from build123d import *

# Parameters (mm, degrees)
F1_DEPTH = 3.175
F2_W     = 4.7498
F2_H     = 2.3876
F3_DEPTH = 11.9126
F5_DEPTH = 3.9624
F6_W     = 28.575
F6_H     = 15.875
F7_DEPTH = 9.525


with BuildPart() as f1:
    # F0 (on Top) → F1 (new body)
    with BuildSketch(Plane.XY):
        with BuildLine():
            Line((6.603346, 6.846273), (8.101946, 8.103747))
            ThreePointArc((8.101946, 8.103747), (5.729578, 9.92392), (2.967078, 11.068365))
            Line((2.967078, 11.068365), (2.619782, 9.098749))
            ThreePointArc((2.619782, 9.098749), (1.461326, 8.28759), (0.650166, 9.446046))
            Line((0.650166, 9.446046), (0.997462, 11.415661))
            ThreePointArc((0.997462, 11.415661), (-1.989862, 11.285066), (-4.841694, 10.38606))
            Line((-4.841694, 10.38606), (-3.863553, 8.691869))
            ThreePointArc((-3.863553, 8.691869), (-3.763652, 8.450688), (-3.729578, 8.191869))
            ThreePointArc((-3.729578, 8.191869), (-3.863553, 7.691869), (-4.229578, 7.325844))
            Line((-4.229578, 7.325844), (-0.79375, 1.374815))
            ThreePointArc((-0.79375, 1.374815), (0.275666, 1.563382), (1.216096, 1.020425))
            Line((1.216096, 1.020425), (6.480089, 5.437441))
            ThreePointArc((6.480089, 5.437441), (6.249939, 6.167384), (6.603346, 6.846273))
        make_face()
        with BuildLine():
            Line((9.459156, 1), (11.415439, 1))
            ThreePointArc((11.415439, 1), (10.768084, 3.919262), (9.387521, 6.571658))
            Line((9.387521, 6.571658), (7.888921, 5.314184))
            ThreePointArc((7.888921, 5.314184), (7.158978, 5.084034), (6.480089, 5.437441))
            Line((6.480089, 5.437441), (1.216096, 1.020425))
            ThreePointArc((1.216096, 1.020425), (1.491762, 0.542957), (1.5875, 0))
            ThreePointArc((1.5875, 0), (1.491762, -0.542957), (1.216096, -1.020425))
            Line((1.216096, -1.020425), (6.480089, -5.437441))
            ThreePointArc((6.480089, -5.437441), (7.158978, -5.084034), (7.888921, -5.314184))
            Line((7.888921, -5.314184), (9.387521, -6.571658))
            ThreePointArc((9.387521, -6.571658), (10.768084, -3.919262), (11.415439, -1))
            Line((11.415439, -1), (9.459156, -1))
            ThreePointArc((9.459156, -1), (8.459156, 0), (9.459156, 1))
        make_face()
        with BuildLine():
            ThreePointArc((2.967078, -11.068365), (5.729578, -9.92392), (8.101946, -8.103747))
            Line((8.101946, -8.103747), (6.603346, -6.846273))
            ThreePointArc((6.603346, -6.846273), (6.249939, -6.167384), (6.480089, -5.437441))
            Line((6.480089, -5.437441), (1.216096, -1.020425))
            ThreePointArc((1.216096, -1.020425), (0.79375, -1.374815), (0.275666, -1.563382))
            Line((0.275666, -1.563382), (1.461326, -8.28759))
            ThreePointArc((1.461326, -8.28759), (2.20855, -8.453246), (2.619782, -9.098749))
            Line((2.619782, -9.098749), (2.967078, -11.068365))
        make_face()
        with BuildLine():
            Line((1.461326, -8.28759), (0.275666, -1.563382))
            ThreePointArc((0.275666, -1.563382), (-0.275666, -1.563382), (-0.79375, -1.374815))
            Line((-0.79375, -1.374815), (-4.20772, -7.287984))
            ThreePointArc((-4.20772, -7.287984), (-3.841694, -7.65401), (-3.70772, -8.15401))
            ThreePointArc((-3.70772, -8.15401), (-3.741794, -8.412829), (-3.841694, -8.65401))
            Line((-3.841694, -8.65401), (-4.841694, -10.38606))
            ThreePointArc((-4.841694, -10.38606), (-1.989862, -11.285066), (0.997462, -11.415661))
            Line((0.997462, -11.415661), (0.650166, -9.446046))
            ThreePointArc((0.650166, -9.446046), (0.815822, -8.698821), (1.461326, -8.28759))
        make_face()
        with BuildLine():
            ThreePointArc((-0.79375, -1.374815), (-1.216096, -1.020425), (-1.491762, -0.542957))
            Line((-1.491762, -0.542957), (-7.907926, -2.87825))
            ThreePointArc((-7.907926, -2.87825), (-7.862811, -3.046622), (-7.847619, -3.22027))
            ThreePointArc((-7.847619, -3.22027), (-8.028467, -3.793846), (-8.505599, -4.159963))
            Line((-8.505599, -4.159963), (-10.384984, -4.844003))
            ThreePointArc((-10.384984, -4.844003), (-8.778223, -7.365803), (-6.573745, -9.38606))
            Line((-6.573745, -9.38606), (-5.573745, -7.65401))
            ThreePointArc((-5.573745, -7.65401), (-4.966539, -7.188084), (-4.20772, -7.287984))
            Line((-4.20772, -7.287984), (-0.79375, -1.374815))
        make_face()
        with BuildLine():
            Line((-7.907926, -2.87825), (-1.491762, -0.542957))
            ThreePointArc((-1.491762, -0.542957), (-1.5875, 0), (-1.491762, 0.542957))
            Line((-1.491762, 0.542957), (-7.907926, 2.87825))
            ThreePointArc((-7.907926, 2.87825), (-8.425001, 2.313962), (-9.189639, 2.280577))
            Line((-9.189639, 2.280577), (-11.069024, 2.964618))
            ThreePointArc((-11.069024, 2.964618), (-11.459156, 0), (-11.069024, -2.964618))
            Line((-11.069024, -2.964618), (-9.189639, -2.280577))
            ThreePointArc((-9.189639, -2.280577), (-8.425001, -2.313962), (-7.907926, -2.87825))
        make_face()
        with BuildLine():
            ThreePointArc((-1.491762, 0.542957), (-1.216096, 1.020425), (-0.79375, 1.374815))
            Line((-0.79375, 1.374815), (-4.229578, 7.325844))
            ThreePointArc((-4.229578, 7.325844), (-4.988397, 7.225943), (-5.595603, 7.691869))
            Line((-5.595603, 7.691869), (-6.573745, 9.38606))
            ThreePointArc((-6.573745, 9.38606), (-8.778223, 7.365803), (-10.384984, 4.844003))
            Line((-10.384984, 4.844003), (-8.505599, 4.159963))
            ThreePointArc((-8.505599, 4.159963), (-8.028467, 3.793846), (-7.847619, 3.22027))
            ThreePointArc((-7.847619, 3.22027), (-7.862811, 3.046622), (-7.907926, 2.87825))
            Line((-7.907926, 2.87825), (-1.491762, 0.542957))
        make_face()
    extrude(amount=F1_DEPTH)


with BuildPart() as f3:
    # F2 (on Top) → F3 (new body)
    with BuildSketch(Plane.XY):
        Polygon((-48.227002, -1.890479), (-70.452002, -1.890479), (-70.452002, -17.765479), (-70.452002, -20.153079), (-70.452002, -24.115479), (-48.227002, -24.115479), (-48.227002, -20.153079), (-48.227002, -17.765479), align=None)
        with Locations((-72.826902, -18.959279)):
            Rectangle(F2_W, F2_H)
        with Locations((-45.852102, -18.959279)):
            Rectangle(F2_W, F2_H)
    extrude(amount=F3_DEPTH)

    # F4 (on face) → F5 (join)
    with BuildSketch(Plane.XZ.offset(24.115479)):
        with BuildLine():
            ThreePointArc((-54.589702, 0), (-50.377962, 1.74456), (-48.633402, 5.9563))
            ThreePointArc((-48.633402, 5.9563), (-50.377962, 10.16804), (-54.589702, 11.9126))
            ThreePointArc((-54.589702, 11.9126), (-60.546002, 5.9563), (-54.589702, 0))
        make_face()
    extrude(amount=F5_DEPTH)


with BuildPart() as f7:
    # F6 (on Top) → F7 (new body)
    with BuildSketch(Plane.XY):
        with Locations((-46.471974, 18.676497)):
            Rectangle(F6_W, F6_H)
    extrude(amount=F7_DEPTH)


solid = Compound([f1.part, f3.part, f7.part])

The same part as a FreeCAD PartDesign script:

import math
import FreeCAD as App
import Part
import Sketcher

V = App.Vector
Q = App.Units.Quantity


def add_polygon(sketch, points):
    """Adds a closed chain of lines whose ends are joined by coincident constraints."""
    first, n = sketch.GeometryCount, len(points)
    for a, b in zip(points, points[1:] + points[:1]):
        sketch.addGeometry(Part.LineSegment(App.Vector(*a, 0), App.Vector(*b, 0)), False)
    for i in range(n):
        sketch.addConstraint(Sketcher.Constraint("Coincident", first + i, 2, first + (i + 1) % n, 1))

doc = App.newDocument("Part")
body = doc.addObject("PartDesign::Body", "Body")

# Sketch on XY plane
sketch1 = body.newObject("Sketcher::SketchObject", "Sketch")
sketch1.AttachmentSupport = (doc.getObject("XY_Plane"), [""])
sketch1.MapMode = "FlatFace"
sketch1.addGeometry([
    Part.LineSegment(V(6.603346, 6.846273, 0), V(8.101946, 8.103747, 0)),  # 0
    Part.ArcOfCircle(Part.Circle(V(0.000001, 0.000003, 0), V(0, 0, 1), 11.459153), math.radians(45.006359), math.radians(74.993631)),  # 1
    Part.LineSegment(V(2.967078, 11.068365, 0), V(2.619782, 9.098749, 0)),  # 2
    Part.ArcOfCircle(Part.Circle(V(1.634974, 9.272398, 0), V(0, 0, 1), 1), math.radians(170.000017), math.radians(349.999951)),  # 3
    Part.LineSegment(V(0.650166, 9.446046, 0), V(0.997462, 11.415661, 0)),  # 4
    Part.ArcOfCircle(Part.Circle(V(-0.000004, 0.000026, 0), V(0, 0, 1), 11.45913), math.radians(85.006338), math.radians(114.993667)),  # 5
    Part.LineSegment(V(-4.841694, 10.38606, 0), V(-3.863553, 8.691869, 0)),  # 6
    Part.ArcOfCircle(Part.Circle(V(-4.729568, 8.191871, 0), V(0, 0, 1), 0.99999), math.radians(-0.000107), math.radians(30.000193)),  # 7
    Part.ArcOfCircle(Part.Circle(V(-4.729579, 8.19187, 0), V(0, 0, 1), 1.000001), math.radians(-59.999968), math.radians(-0.000055)),  # 8
    Part.ArcOfCircle(Part.Circle(V(-4.729578, 8.191867, 0), V(0, 0, 1), 0.999998), math.radians(-150.000058), math.radians(-59.999918)),  # 9
    Part.LineSegment(V(-5.595603, 7.691869, 0), V(-6.573745, 9.38606, 0)),  # 10
    Part.ArcOfCircle(Part.Circle(V(-0.000002, 0, 0), V(0, 0, 1), 11.459154), math.radians(125.006362), math.radians(154.993628)),  # 11
    Part.LineSegment(V(-10.384984, 4.844003, 0), V(-8.505599, 4.159963, 0)),  # 12
    Part.ArcOfCircle(Part.Circle(V(-8.847621, 3.220269, 0), V(0, 0, 1), 1.000002), math.radians(0.000067), math.radians(69.999923)),  # 13
    Part.ArcOfCircle(Part.Circle(V(-8.847615, 3.220268, 0), V(0, 0, 1), 0.999996), math.radians(-19.999973), math.radians(0.000088)),  # 14
    Part.ArcOfCircle(Part.Circle(V(-8.847619, 3.220271, 0), V(0, 0, 1), 1.000001), math.radians(-109.999954), math.radians(-20.000016)),  # 15
    Part.LineSegment(V(-9.189639, 2.280577, 0), V(-11.069024, 2.964618, 0)),  # 16
    Part.ArcOfCircle(Part.Circle(V(-0.000005, 0, 0), V(0, 0, 1), 11.459151), math.radians(165.006359), math.radians(194.993641)),  # 17
    Part.LineSegment(V(-11.069024, -2.964618, 0), V(-9.189639, -2.280577, 0)),  # 18
    Part.ArcOfCircle(Part.Circle(V(-8.847619, -3.220271, 0), V(0, 0, 1), 1.000001), math.radians(20.000016), math.radians(109.999954)),  # 19
    Part.ArcOfCircle(Part.Circle(V(-8.847615, -3.220268, 0), V(0, 0, 1), 0.999996), math.radians(-0.000088), math.radians(19.999973)),  # 20
    Part.ArcOfCircle(Part.Circle(V(-8.847621, -3.220269, 0), V(0, 0, 1), 1.000002), math.radians(-69.999923), math.radians(-0.000067)),  # 21
    Part.LineSegment(V(-8.505599, -4.159963, 0), V(-10.384984, -4.844003, 0)),  # 22
    Part.ArcOfCircle(Part.Circle(V(-0.000002, 0, 0), V(0, 0, 1), 11.459154), math.radians(-154.993628), math.radians(-125.006362)),  # 23
    Part.LineSegment(V(-6.573745, -9.38606, 0), V(-5.573745, -7.65401, 0)),  # 24
    Part.ArcOfCircle(Part.Circle(V(-4.707719, -8.15401, 0), V(0, 0, 1), 1), math.radians(60.000032), math.radians(150.000023)),  # 25
    Part.ArcOfCircle(Part.Circle(V(-4.707719, -8.154009, 0), V(0, 0, 1), 0.999999), math.radians(-0.000081), math.radians(60.000047)),  # 26
    Part.ArcOfCircle(Part.Circle(V(-4.707723, -8.15401, 0), V(0, 0, 1), 1.000003), math.radians(-29.999883), math.radians(0.000011)),  # 27
    Part.LineSegment(V(-3.841694, -8.65401, 0), V(-4.841694, -10.38606, 0)),  # 28
    Part.ArcOfCircle(Part.Circle(V(-0.000004, -0.000026, 0), V(0, 0, 1), 11.45913), math.radians(-114.993667), math.radians(-85.006338)),  # 29
    Part.LineSegment(V(0.997462, -11.415661, 0), V(0.650166, -9.446046, 0)),  # 30
    Part.ArcOfCircle(Part.Circle(V(1.634974, -9.272398, 0), V(0, 0, 1), 1), math.radians(99.999977), math.radians(189.999998)),  # 31
    Part.ArcOfCircle(Part.Circle(V(1.634973, -9.2724, 0), V(0, 0, 1), 1.000002), math.radians(10.00013), math.radians(99.999911)),  # 32
    Part.LineSegment(V(2.619782, -9.098749, 0), V(2.967078, -11.068365, 0)),  # 33
    Part.ArcOfCircle(Part.Circle(V(0.000001, -0.000003, 0), V(0, 0, 1), 11.459153), math.radians(-74.993631), math.radians(-45.006359)),  # 34
    Part.LineSegment(V(8.101946, -8.103747, 0), V(6.603346, -6.846273, 0)),  # 35
    Part.ArcOfCircle(Part.Circle(V(7.246134, -6.080228, 0), V(0, 0, 1), 1), math.radians(140.000033), math.radians(229.99998)),  # 36
    Part.ArcOfCircle(Part.Circle(V(7.246134, -6.080229, 0), V(0, 0, 1), 1), math.radians(50.000033), math.radians(139.99998)),  # 37
    Part.LineSegment(V(7.888921, -5.314184, 0), V(9.387521, -6.571658, 0)),  # 38
    Part.ArcOfCircle(Part.Circle(V(0.000005, -0.000001, 0), V(0, 0, 1), 11.45915), math.radians(-34.993641), math.radians(-5.006365)),  # 39
    Part.LineSegment(V(11.415439, -1, 0), V(9.459156, -1, 0)),  # 40
    Part.ArcOfCircle(Part.Circle(V(9.459156, 0, 0), V(0, 0, 1), 1), math.radians(90), math.radians(270)),  # 41
    Part.LineSegment(V(9.459156, 1, 0), V(11.415439, 1, 0)),  # 42
    Part.ArcOfCircle(Part.Circle(V(0.000005, 0.000001, 0), V(0, 0, 1), 11.45915), math.radians(5.006365), math.radians(34.993641)),  # 43
    Part.LineSegment(V(9.387521, 6.571658, 0), V(7.888921, 5.314184, 0)),  # 44
    Part.ArcOfCircle(Part.Circle(V(7.246134, 6.080229, 0), V(0, 0, 1), 1), math.radians(-139.99998), math.radians(-50.000033)),  # 45
    Part.ArcOfCircle(Part.Circle(V(7.246134, 6.080228, 0), V(0, 0, 1), 1), math.radians(130.00002), math.radians(219.999967)),  # 46
    Part.ArcOfCircle(Part.Circle(V(0, -0.000001, 0), V(0, 0, 1), 1.587501), math.radians(40.00002), math.radians(119.999984)),  # 47
    Part.ArcOfCircle(Part.Circle(V(-0.000001, 0, 0), V(0, 0, 1), 1.587501), math.radians(0.000012), math.radians(39.999956)),  # 48
    Part.ArcOfCircle(Part.Circle(V(-0.000001, 0, 0), V(0, 0, 1), 1.587501), math.radians(-39.999956), math.radians(-0.000012)),  # 49
    Part.ArcOfCircle(Part.Circle(V(-0.000001, 0.000003, 0), V(0, 0, 1), 1.587502), math.radians(-80.000009), math.radians(-40.000038)),  # 50
    Part.ArcOfCircle(Part.Circle(V(0, 0.000001, 0), V(0, 0, 1), 1.5875), math.radians(-119.99999), math.radians(-80.000021)),  # 51
    Part.ArcOfCircle(Part.Circle(V(-0.000004, -0.000003, 0), V(0, 0, 1), 1.587495), math.radians(-160.000044), math.radians(-119.999935)),  # 52
    Part.ArcOfCircle(Part.Circle(V(0, 0, 0), V(0, 0, 1), 1.5875), math.radians(159.999994), math.radians(200.000006)),  # 53
    Part.ArcOfCircle(Part.Circle(V(-0.000004, 0.000003, 0), V(0, 0, 1), 1.587495), math.radians(119.999935), math.radians(160.000044)),  # 54
], False)
sketch1.addConstraint([
    Sketcher.Constraint("Coincident", 0, 2, 1, 1),
    Sketcher.Constraint("Coincident", 1, 2, 2, 1),
    Sketcher.Constraint("Tangent", 2, 2, 3, 2),
    Sketcher.Constraint("Tangent", 3, 1, 4, 1),
    Sketcher.Constraint("Coincident", 4, 2, 5, 1),
    Sketcher.Constraint("Coincident", 5, 2, 6, 1),
    Sketcher.Constraint("Coincident", 6, 2, 7, 2),
    Sketcher.Constraint("Tangent", 7, 1, 8, 2),
    Sketcher.Constraint("Tangent", 8, 1, 9, 2),
    Sketcher.Constraint("Tangent", 9, 1, 10, 1),
    Sketcher.Constraint("Coincident", 10, 2, 11, 1),
    Sketcher.Constraint("Coincident", 11, 2, 12, 1),
    Sketcher.Constraint("Tangent", 12, 2, 13, 2),
    Sketcher.Constraint("Tangent", 13, 1, 14, 2),
    Sketcher.Constraint("Tangent", 14, 1, 15, 2),
    Sketcher.Constraint("Tangent", 15, 1, 16, 1),
    Sketcher.Constraint("Coincident", 16, 2, 17, 1),
    Sketcher.Constraint("Coincident", 17, 2, 18, 1),
    Sketcher.Constraint("Tangent", 18, 2, 19, 2),
    Sketcher.Constraint("Tangent", 19, 1, 20, 2),
    Sketcher.Constraint("Tangent", 20, 1, 21, 2),
    Sketcher.Constraint("Tangent", 21, 1, 22, 1),
    Sketcher.Constraint("Coincident", 22, 2, 23, 1),
    Sketcher.Constraint("Coincident", 23, 2, 24, 1),
    Sketcher.Constraint("Tangent", 24, 2, 25, 2),
    Sketcher.Constraint("Tangent", 25, 1, 26, 2),
    Sketcher.Constraint("Tangent", 26, 1, 27, 2),
    Sketcher.Constraint("Coincident", 27, 1, 28, 1),
    Sketcher.Constraint("Coincident", 28, 2, 29, 1),
    Sketcher.Constraint("Coincident", 29, 2, 30, 1),
    Sketcher.Constraint("Tangent", 30, 2, 31, 2),
    Sketcher.Constraint("Tangent", 31, 1, 32, 2),
    Sketcher.Constraint("Coincident", 32, 1, 33, 1),
    Sketcher.Constraint("Coincident", 33, 2, 34, 1),
    Sketcher.Constraint("Coincident", 34, 2, 35, 1),
    Sketcher.Constraint("Tangent", 35, 2, 36, 2),
    Sketcher.Constraint("Tangent", 36, 1, 37, 2),
    Sketcher.Constraint("Tangent", 37, 1, 38, 1),
    Sketcher.Constraint("Coincident", 38, 2, 39, 1),
    Sketcher.Constraint("Coincident", 39, 2, 40, 1),
    Sketcher.Constraint("Tangent", 40, 2, 41, 2),
    Sketcher.Constraint("Tangent", 41, 1, 42, 1),
    Sketcher.Constraint("Coincident", 42, 2, 43, 1),
    Sketcher.Constraint("Coincident", 43, 2, 44, 1),
    Sketcher.Constraint("Tangent", 44, 2, 45, 2),
    Sketcher.Constraint("Tangent", 45, 1, 46, 2),
    Sketcher.Constraint("Tangent", 46, 1, 0, 1),
    Sketcher.Constraint("Tangent", 47, 1, 48, 2),
    Sketcher.Constraint("Tangent", 48, 1, 49, 2),
    Sketcher.Constraint("Tangent", 49, 1, 50, 2),
    Sketcher.Constraint("Tangent", 50, 1, 51, 2),
    Sketcher.Constraint("Tangent", 51, 1, 52, 2),
    Sketcher.Constraint("Tangent", 52, 1, 53, 2),
    Sketcher.Constraint("Tangent", 53, 1, 54, 2),
    Sketcher.Constraint("Tangent", 54, 1, 47, 2),
    Sketcher.Constraint("Horizontal", 40),
    Sketcher.Constraint("Horizontal", 42),
    Sketcher.Constraint("Coincident", 1, 3, -1, 1),
    Sketcher.Constraint("Coincident", 11, 3, -1, 1),
    Sketcher.Constraint("Coincident", 17, 3, -1, 1),
    Sketcher.Constraint("Coincident", 23, 3, -1, 1),
    Sketcher.Constraint("Coincident", 34, 3, -1, 1),
    Sketcher.Constraint("Coincident", 39, 3, -1, 1),
    Sketcher.Constraint("Coincident", 43, 3, -1, 1),
    Sketcher.Constraint("Coincident", 47, 3, -1, 1),
    Sketcher.Constraint("Coincident", 49, 3, -1, 1),
    Sketcher.Constraint("Coincident", 51, 3, -1, 1),
    Sketcher.Constraint("Coincident", 15, 3, 13, 3),
    Sketcher.Constraint("Coincident", 21, 3, 19, 3),
    Sketcher.Constraint("Coincident", 27, 3, 25, 3),
    Sketcher.Constraint("Equal", 3, 8),
    Sketcher.Constraint("Equal", 3, 9),
    Sketcher.Constraint("Equal", 1, 11),
    Sketcher.Constraint("Equal", 8, 13),
    Sketcher.Constraint("Equal", 15, 19),
    Sketcher.Constraint("Equal", 11, 23),
    Sketcher.Constraint("Equal", 19, 25),
    Sketcher.Constraint("Equal", 5, 29),
    Sketcher.Constraint("Equal", 26, 31),
    Sketcher.Constraint("Equal", 31, 32),
    Sketcher.Constraint("Equal", 23, 34),
    Sketcher.Constraint("Equal", 32, 36),
    Sketcher.Constraint("Equal", 36, 37),
    Sketcher.Constraint("Equal", 17, 39),
    Sketcher.Constraint("Equal", 37, 41),
    Sketcher.Constraint("Equal", 39, 43),
    Sketcher.Constraint("Equal", 41, 45),
    Sketcher.Constraint("Equal", 45, 46),
    Sketcher.Constraint("Equal", 51, 53),
    Sketcher.Constraint("Symmetric", 5, 3, 29, 3, -1, 1),
    Sketcher.Constraint("Symmetric", 13, 3, 19, 3, -1),
    Sketcher.Constraint("Symmetric", 3, 3, 31, 3, -1),
    Sketcher.Constraint("Symmetric", 36, 3, 45, 3, -1),
    Sketcher.Constraint("Symmetric", 5, 2, 28, 2, -1),
    Sketcher.Constraint("PointOnObject", 41, 3, -1),
    Sketcher.Constraint("PointOnObject", 48, 1, -1),
    Sketcher.Constraint("Parallel", 2, 4),
    Sketcher.Constraint("Parallel", 6, 10),
    Sketcher.Constraint("Parallel", 12, 16),
    Sketcher.Constraint("Parallel", 18, 22),
    Sketcher.Constraint("Parallel", 24, 28),
    Sketcher.Constraint("Parallel", 30, 33),
    Sketcher.Constraint("Parallel", 35, 38),
    Sketcher.Constraint("Parallel", 0, 44),
    Sketcher.Constraint("Horizontal", 9, 3, 7, 1),
    Sketcher.Constraint("Horizontal", 15, 3, 13, 1),
    Sketcher.Constraint("Horizontal", 21, 3, 20, 1),
    Sketcher.Constraint("Horizontal", 27, 3, 26, 1),
    Sketcher.Constraint("Vertical", 16, 2, 17, 2),
    Sketcher.Constraint("Vertical", 14, 1, 19, 1),
    Sketcher.Constraint("Vertical", 10, 2, 23, 2),
    Sketcher.Constraint("Vertical", 4, 2, 29, 2),
    Sketcher.Constraint("Vertical", 2, 2, 32, 1),
    Sketcher.Constraint("Vertical", 0, 2, 34, 2),
    Sketcher.Constraint("Vertical", 36, 1, 45, 1),
    Sketcher.Constraint("Vertical", 47, 1, 49, 1),
    Sketcher.Constraint("Vertical", 52, 1, 53, 1),
    Sketcher.Constraint("Vertical", 51, 1, 54, 1),
    Sketcher.Constraint("Equal", 2, 4),
    Sketcher.Constraint("Equal", 0, 6),
    Sketcher.Constraint("Equal", 6, 10),
    Sketcher.Constraint("Equal", 4, 12),
    Sketcher.Constraint("Equal", 12, 16),
    Sketcher.Constraint("Equal", 22, 24),
    Sketcher.Constraint("Equal", 24, 28),
    Sketcher.Constraint("Equal", 35, 38),
    Sketcher.Constraint("Angle", 0, Q("39.999984 deg")),
    Sketcher.Constraint("Angle", 2, Q("-99.999988 deg")),
    Sketcher.Constraint("Angle", 6, Q("-60.000016 deg")),
    Sketcher.Constraint("Angle", 12, Q("-19.999995 deg")),
    Sketcher.Constraint("Angle", 24, Q("59.999988 deg")),
    Sketcher.Constraint("Radius", 47, Q("0.0625 in")),
    Sketcher.Constraint("Radius", 3, Q("1 mm")),
    Sketcher.Constraint("DistanceX", 51, 1, -1, 1, Q("0.03125 in")),
    Sketcher.Constraint("Radius", 5, Q("11.45913 mm")),
    Sketcher.Constraint("Radius", 17, Q("11.459151 mm")),
    Sketcher.Constraint("DistanceY", -1, 1, 5, 2, Q("0.4089 in")),
    Sketcher.Constraint("Radius", 1, Q("11.459153 mm")),
    Sketcher.Constraint("Distance", 2, Q("2 mm")),
    Sketcher.Constraint("DistanceY", -1, 1, 3, 3, Q("9.272398 mm")),
    Sketcher.Constraint("DistanceX", 40, 2, 40, 1, Q("1.956283 mm")),
    Sketcher.Constraint("DistanceX", 7, 3, -1, 1, Q("4.729568 mm")),
    Sketcher.Constraint("DistanceY", -1, 1, 14, 1, Q("2.87825 mm")),
    Sketcher.Constraint("DistanceX", 25, 1, -1, 1, Q("4.20772 mm")),
    Sketcher.Constraint("DistanceY", 31, 1, -1, 1, Q("8.28759 mm")),
    Sketcher.Constraint("DistanceX", -1, 1, 36, 1, Q("6.480089 mm")),
    Sketcher.Constraint("DistanceY", 50, 1, -1, 1, Q("1.563382 mm")),
    Sketcher.Constraint("DistanceX", 53, 1, -1, 1, Q("1.491762 mm")),
    Sketcher.Constraint("DistanceX", 8, 1, -1, 1, Q("4.229578 mm")),
    Sketcher.Constraint("DistanceX", -1, 1, 47, 1, Q("1.216096 mm")),
])
pad1 = body.newObject("PartDesign::Pad", "Pad")
pad1.Profile = sketch1
pad1.Length = Q("0.125 in")
body2 = doc.addObject("PartDesign::Body", "Body001")

# Sketch on XY plane
sketch2 = body2.newObject("Sketcher::SketchObject", "Sketch001")
sketch2.AttachmentSupport = (doc.getObject("XY_Plane001"), [""])
sketch2.MapMode = "FlatFace"
add_polygon(sketch2, [(-48.2, -1.9), (-70.5, -1.9), (-70.5, -17.8), (-75.2, -17.8), (-75.2, -20.2), (-70.5, -20.2), (-70.5, -24.1), (-48.2, -24.1), (-48.2, -20.2), (-43.5, -20.2), (-43.5, -17.8), (-48.2, -17.8)])  # lines 0-11
sketch2.addConstraint([
    Sketcher.Constraint("Horizontal", 0),
    Sketcher.Constraint("Vertical", 1),
    Sketcher.Constraint("Horizontal", 2),
    Sketcher.Constraint("Vertical", 3),
    Sketcher.Constraint("Horizontal", 4),
    Sketcher.Constraint("Vertical", 5),
    Sketcher.Constraint("Horizontal", 6),
    Sketcher.Constraint("Vertical", 7),
    Sketcher.Constraint("Horizontal", 8),
    Sketcher.Constraint("Vertical", 9),
    Sketcher.Constraint("Horizontal", 10),
    Sketcher.Constraint("Vertical", 11),
    Sketcher.Constraint("Horizontal", 4, 2, 7, 2),
    Sketcher.Constraint("Horizontal", 2, 2, 9, 2),
    Sketcher.Constraint("Vertical", 1, 2, 4, 2),
    Sketcher.Constraint("Vertical", 7, 2, 10, 2),
    Sketcher.Constraint("Equal", 4, 8),
    Sketcher.Constraint("DistanceX", 0, 2, 0, 1, Q("0.875 in")),
    Sketcher.Constraint("DistanceX", 2, 2, 2, 1, Q("0.187 in")),
    Sketcher.Constraint("DistanceY", 1, 2, 1, 1, Q("0.625 in")),
    Sketcher.Constraint("DistanceY", 3, 2, 3, 1, Q("0.094 in")),
    Sketcher.Constraint("DistanceY", 5, 2, 5, 1, Q("0.156 in")),
    Sketcher.Constraint("DistanceX", 0, 2, -1, 1, Q("70.452002 mm")),
    Sketcher.Constraint("DistanceY", 0, 2, -1, 1, Q("1.890479 mm")),
])
pad2 = body2.newObject("PartDesign::Pad", "Pad001")
pad2.Profile = sketch2
pad2.Length = Q("0.469 in")

# Sketch on XZ plane
sketch3 = body2.newObject("Sketcher::SketchObject", "Sketch002")
sketch3.AttachmentSupport = (doc.getObject("XZ_Plane001"), [""])
sketch3.MapMode = "FlatFace"
sketch3.AttachmentOffset = App.Placement(V(0, 0, 24.115479), App.Rotation())
sketch3.addGeometry([
    Part.ArcOfCircle(Part.Circle(V(-55, 6, 0), V(0, 0, 1), 6), math.radians(-90), math.radians(0)),
    Part.ArcOfCircle(Part.Circle(V(-55, 6, 0), V(0, 0, 1), 6), math.radians(0), math.radians(90)),
    Part.ArcOfCircle(Part.Circle(V(-55, 6, 0), V(0, 0, 1), 6), math.radians(90), math.radians(270)),
], False)
sketch3.addConstraint([
    Sketcher.Constraint("Tangent", 0, 2, 1, 1),
    Sketcher.Constraint("Tangent", 1, 2, 2, 1),
    Sketcher.Constraint("Tangent", 2, 2, 0, 1),
    Sketcher.Constraint("PointOnObject", 2, 2, -1),
    Sketcher.Constraint("Horizontal", 2, 3, 0, 2),
    Sketcher.Constraint("Vertical", 2, 3, 1, 2),
    Sketcher.Constraint("Vertical", 1, 2, 2, 2),
    Sketcher.Constraint("Radius", 0, Q("0.2345 in")),
    Sketcher.Constraint("DistanceX", 0, 3, -1, 1, Q("54.589702 mm")),
])
pad3 = body2.newObject("PartDesign::Pad", "Pad002")
pad3.Profile = sketch3
pad3.Length = Q("0.156 in")
body3 = doc.addObject("PartDesign::Body", "Body002")

# Sketch on XY plane
sketch4 = body3.newObject("Sketcher::SketchObject", "Sketch003")
sketch4.AttachmentSupport = (doc.getObject("XY_Plane002"), [""])
sketch4.MapMode = "FlatFace"
add_polygon(sketch4, [(-61, 27), (-61, 11), (-32, 11), (-32, 27)])  # lines 0-3
sketch4.addConstraint([
    Sketcher.Constraint("Vertical", 0),
    Sketcher.Constraint("Horizontal", 1),
    Sketcher.Constraint("Vertical", 2),
    Sketcher.Constraint("Horizontal", 3),
    Sketcher.Constraint("DistanceX", 1, 1, 1, 2, Q("1.125 in")),
    Sketcher.Constraint("DistanceY", 0, 2, 0, 1, Q("0.625 in")),
    Sketcher.Constraint("DistanceX", 0, 2, -1, 1, Q("60.759474 mm")),
    Sketcher.Constraint("DistanceY", -1, 1, 0, 2, Q("10.738997 mm")),
])
pad4 = body3.newObject("PartDesign::Pad", "Pad003")
pad4.Profile = sketch4
pad4.Length = Q("0.375 in")

doc.recompute()
